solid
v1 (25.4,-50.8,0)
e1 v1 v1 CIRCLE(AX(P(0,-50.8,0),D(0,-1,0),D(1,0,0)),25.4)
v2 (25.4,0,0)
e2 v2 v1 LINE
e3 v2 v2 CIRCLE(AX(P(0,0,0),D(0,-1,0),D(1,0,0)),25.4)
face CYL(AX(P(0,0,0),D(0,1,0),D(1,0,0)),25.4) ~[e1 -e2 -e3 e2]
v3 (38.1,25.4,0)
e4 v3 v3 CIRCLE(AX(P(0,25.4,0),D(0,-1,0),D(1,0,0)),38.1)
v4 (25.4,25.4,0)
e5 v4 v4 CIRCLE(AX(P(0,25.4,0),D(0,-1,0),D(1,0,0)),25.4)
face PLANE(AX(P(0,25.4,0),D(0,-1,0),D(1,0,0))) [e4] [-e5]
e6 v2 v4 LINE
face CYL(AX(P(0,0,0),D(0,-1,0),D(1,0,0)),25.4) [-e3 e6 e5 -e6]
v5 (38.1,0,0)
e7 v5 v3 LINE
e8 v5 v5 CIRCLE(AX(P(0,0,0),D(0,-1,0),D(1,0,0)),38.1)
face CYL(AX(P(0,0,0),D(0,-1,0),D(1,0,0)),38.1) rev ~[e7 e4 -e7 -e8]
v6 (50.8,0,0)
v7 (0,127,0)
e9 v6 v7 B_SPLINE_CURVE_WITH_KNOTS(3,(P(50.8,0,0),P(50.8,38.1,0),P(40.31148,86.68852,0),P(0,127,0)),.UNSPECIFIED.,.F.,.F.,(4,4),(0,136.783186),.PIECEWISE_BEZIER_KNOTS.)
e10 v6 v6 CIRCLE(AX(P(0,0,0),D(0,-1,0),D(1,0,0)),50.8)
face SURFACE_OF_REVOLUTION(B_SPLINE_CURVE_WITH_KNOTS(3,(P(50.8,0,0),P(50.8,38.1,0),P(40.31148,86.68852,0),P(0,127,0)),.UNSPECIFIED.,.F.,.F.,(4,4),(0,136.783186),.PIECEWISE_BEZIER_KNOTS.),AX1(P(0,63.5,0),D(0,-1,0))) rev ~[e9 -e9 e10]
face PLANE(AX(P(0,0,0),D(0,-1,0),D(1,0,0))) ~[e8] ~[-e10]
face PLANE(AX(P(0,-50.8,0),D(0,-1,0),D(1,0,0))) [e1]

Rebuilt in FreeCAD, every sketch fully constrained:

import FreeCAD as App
import Part
import Sketcher

V = App.Vector
Q = App.Units.Quantity

doc = App.newDocument("Part")
params = doc.addObject("Spreadsheet::Sheet", "Params")
for row, (alias, value) in enumerate([
    ("revolution_angle", "360 deg"),
    ("sketch2_diameter", "3 in"),
    ("sketch2_diameter2", "2 in"),
    ("pocket1_length", "1 in"),
    ("sketch3_diameter", "2 in"),
    ("pad1_length", "2 in"),
], start=1):
    params.set(f"A{row}", alias)
    params.set(f"B{row}", "=" + value)
    params.setAlias(f"B{row}", alias)

body = doc.addObject("PartDesign::Body", "Body")

# Sketch on XY plane
sketch1 = body.newObject("Sketcher::SketchObject", "Sketch")
sketch1.AttachmentSupport = (doc.getObject("XY_Plane"), [""])
sketch1.MapMode = "FlatFace"
sketch1.addGeometry([
    Part.BSplineCurve([V(50.8, 0, 0), V(50.8, 38.1, 0), V(40.31148, 86.68852, 0), V(0, 127, 0)], [4, 4], [0, 136.783186], False, 3, [1, 1, 1, 1], False),
    Part.LineSegment(V(0, 127, 0), V(0, 0, 0)),
    Part.LineSegment(V(0, 0, 0), V(50.8, 0, 0)),
], False)
sketch1.addConstraint([
    Sketcher.Constraint("Block", 0),
    Sketcher.Constraint("Coincident", 0, 2, 1, 1),
    Sketcher.Constraint("Coincident", 1, 2, 2, 1),
    Sketcher.Constraint("Coincident", 2, 2, 0, 1),
    Sketcher.Constraint("Vertical", 1),
    Sketcher.Constraint("Horizontal", 2),
])
revolution = body.newObject("PartDesign::Revolution", "Revolution")
revolution.Profile = sketch1
revolution.ReferenceAxis = (sketch1, ["V_Axis"])
revolution.setExpression("Angle", "Params.revolution_angle")

# Sketch on XZ plane
sketch2 = body.newObject("Sketcher::SketchObject", "Sketch001")
sketch2.AttachmentSupport = (doc.getObject("XZ_Plane"), [""])
sketch2.MapMode = "FlatFace"
sketch2.addGeometry([
    Part.Circle(V(0, 0, 0), V(0, 0, 1), 38),
    Part.Circle(V(0, 0, 0), V(0, 0, 1), 25),
], False)
sketch2.addConstraint([
    Sketcher.Constraint("Coincident", 0, 3, -1, 1),
    Sketcher.Constraint("Coincident", 1, 3, -1, 1),
    Sketcher.Constraint("Diameter", 0, Q("3 in")),
    Sketcher.Constraint("Diameter", 1, Q("2 in")),
])
sketch2.setExpression("Constraints[2]", "Params.sketch2_diameter")
sketch2.setExpression("Constraints[3]", "Params.sketch2_diameter2")
pocket1 = body.newObject("PartDesign::Pocket", "Pocket")
pocket1.Profile = sketch2
pocket1.setExpression("Length", "Params.pocket1_length")

# Sketch on XZ plane
sketch3 = body.newObject("Sketcher::SketchObject", "Sketch002")
sketch3.AttachmentSupport = (doc.getObject("XZ_Plane"), [""])
sketch3.MapMode = "FlatFace"
sketch3.addGeometry(Part.Circle(V(0, 0, 0), V(0, 0, 1), 25), False)
sketch3.addConstraint([
    Sketcher.Constraint("Coincident", 0, 3, -1, 1),
    Sketcher.Constraint("Diameter", 0, Q("2 in")),
])
sketch3.setExpression("Constraints[1]", "Params.sketch3_diameter")
pad1 = body.newObject("PartDesign::Pad", "Pad")
pad1.Profile = sketch3
pad1.setExpression("Length", "Params.pad1_length")

doc.recompute()
